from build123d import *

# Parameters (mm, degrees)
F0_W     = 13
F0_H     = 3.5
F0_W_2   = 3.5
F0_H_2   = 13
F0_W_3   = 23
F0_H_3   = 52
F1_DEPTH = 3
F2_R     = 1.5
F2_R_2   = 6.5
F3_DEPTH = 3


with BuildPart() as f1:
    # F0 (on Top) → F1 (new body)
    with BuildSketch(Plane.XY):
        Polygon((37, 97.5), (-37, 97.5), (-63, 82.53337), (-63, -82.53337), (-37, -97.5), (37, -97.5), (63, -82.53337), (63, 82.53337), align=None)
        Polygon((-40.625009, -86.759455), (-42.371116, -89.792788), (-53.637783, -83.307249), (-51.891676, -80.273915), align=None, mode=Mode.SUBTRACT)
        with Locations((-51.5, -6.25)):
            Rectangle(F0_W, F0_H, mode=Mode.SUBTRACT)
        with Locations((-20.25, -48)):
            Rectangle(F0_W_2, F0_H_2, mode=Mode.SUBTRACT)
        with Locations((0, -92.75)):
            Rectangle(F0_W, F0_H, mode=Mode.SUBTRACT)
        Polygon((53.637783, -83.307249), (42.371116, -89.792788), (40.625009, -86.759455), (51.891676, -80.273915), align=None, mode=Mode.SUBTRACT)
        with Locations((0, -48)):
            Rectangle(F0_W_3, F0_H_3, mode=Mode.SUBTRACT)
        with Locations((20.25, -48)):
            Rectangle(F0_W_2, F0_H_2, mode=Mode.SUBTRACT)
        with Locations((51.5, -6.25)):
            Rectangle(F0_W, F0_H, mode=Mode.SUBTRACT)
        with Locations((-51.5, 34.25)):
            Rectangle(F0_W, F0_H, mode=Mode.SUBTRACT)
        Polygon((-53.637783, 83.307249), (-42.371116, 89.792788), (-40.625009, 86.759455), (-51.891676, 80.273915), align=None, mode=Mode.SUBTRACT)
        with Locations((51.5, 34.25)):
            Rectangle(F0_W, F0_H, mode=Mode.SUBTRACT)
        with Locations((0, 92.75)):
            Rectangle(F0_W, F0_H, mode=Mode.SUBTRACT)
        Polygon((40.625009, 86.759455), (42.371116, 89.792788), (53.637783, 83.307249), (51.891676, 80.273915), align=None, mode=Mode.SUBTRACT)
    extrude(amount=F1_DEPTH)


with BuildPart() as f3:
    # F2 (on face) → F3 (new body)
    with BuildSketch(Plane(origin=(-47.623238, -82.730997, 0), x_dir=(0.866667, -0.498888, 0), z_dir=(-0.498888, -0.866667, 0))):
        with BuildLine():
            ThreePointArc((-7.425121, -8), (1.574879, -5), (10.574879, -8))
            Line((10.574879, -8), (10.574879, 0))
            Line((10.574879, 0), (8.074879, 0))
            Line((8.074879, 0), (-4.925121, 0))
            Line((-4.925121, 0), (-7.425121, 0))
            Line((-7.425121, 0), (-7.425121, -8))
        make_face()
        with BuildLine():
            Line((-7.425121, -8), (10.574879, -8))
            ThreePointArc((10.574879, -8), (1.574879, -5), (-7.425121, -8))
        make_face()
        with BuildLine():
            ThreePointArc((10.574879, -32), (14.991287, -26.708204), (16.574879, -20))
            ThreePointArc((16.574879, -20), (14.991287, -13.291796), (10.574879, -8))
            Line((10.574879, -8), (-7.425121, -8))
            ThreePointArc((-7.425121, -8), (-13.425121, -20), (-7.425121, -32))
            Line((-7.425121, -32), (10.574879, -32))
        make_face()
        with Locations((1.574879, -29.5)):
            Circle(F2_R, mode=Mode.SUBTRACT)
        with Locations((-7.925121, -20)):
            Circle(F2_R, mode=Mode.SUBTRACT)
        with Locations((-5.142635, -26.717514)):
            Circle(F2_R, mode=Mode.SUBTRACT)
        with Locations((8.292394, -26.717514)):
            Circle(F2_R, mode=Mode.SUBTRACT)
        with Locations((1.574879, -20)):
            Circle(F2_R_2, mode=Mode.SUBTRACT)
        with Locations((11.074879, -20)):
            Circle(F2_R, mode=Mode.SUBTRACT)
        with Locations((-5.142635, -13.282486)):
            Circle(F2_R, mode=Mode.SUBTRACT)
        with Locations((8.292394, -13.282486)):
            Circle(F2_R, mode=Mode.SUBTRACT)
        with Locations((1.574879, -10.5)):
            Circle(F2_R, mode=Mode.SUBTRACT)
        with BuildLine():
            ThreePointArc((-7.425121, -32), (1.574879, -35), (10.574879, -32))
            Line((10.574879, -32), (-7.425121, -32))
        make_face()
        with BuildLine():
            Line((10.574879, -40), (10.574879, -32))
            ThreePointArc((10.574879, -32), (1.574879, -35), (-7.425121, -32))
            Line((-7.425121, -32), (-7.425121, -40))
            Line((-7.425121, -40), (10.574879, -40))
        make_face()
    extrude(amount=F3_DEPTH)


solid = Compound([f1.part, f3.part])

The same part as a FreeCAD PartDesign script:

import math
import FreeCAD as App
import Part
import Sketcher

V = App.Vector
Q = App.Units.Quantity


def add_polygon(sketch, points):
    """Adds a closed chain of lines whose ends are joined by coincident constraints."""
    first, n = sketch.GeometryCount, len(points)
    for a, b in zip(points, points[1:] + points[:1]):
        sketch.addGeometry(Part.LineSegment(App.Vector(*a, 0), App.Vector(*b, 0)), False)
    for i in range(n):
        sketch.addConstraint(Sketcher.Constraint("Coincident", first + i, 2, first + (i + 1) % n, 1))

doc = App.newDocument("Part")
body = doc.addObject("PartDesign::Body", "Body")

# Sketch on XY plane
sketch1 = body.newObject("Sketcher::SketchObject", "Sketch")
sketch1.AttachmentSupport = (doc.getObject("XY_Plane"), [""])
sketch1.MapMode = "FlatFace"
add_polygon(sketch1, [(37, 97.5), (-37, 97.5), (-63, 82.5), (-63, -82.5), (-37, -97.5), (37, -97.5), (63, -82.5), (63, 82.5)])  # lines 0-7
add_polygon(sketch1, [(-51.9, -80.3), (-40.6, -86.8), (-42.4, -89.8), (-53.6, -83.3)])  # lines 8-11
add_polygon(sketch1, [(-18.5, -54.5), (-22, -54.5), (-22, -41.5), (-18.5, -41.5)])  # lines 12-15
add_polygon(sketch1, [(-45, -8), (-58, -8), (-58, -4.5), (-45, -4.5)])  # lines 16-19
add_polygon(sketch1, [(6.5, -94.5), (-6.5, -94.5), (-6.5, -91), (6.5, -91)])  # lines 20-23
add_polygon(sketch1, [(11.5, -74), (-11.5, -74), (-11.5, -22), (11.5, -22)])  # lines 24-27
add_polygon(sketch1, [(22, -54.5), (18.5, -54.5), (18.5, -41.5), (22, -41.5)])  # lines 28-31
add_polygon(sketch1, [(51.9, -80.3), (53.6, -83.3), (42.4, -89.8), (40.6, -86.8)])  # lines 32-35
add_polygon(sketch1, [(58, -8), (45, -8), (45, -4.5), (58, -4.5)])  # lines 36-39
add_polygon(sketch1, [(-45, 32.5), (-58, 32.5), (-58, 36), (-45, 36)])  # lines 40-43
add_polygon(sketch1, [(-51.9, 80.3), (-53.6, 83.3), (-42.4, 89.8), (-40.6, 86.8)])  # lines 44-47
add_polygon(sketch1, [(58, 32.5), (45, 32.5), (45, 36), (58, 36)])  # lines 48-51
add_polygon(sketch1, [(6.5, 91), (-6.5, 91), (-6.5, 94.5), (6.5, 94.5)])  # lines 52-55
add_polygon(sketch1, [(51.9, 80.3), (40.6, 86.8), (42.4, 89.8), (53.6, 83.3)])  # lines 56-59
sketch1.addConstraint(Sketcher.Constraint("Horizontal", 0))
sketch1.addConstraint(Sketcher.Constraint("Vertical", 2))
sketch1.addConstraint(Sketcher.Constraint("Horizontal", 4))
sketch1.addConstraint(Sketcher.Constraint("Vertical", 6))
sketch1.addConstraint(Sketcher.Constraint("Horizontal", 12))
sketch1.addConstraint(Sketcher.Constraint("Vertical", 13))
sketch1.addConstraint(Sketcher.Constraint("Horizontal", 14))
sketch1.addConstraint(Sketcher.Constraint("Vertical", 15))
sketch1.addConstraint(Sketcher.Constraint("Horizontal", 16))
sketch1.addConstraint(Sketcher.Constraint("Vertical", 17))
sketch1.addConstraint(Sketcher.Constraint("Horizontal", 18))
sketch1.addConstraint(Sketcher.Constraint("Vertical", 19))
sketch1.addConstraint(Sketcher.Constraint("Horizontal", 20))
sketch1.addConstraint(Sketcher.Constraint("Vertical", 21))
sketch1.addConstraint(Sketcher.Constraint("Horizontal", 22))
sketch1.addConstraint(Sketcher.Constraint("Vertical", 23))
sketch1.addConstraint(Sketcher.Constraint("Horizontal", 24))
sketch1.addConstraint(Sketcher.Constraint("Vertical", 25))
sketch1.addConstraint(Sketcher.Constraint("Horizontal", 26))
sketch1.addConstraint(Sketcher.Constraint("Vertical", 27))
sketch1.addConstraint(Sketcher.Constraint("Horizontal", 28))
sketch1.addConstraint(Sketcher.Constraint("Vertical", 29))
sketch1.addConstraint(Sketcher.Constraint("Horizontal", 30))
sketch1.addConstraint(Sketcher.Constraint("Vertical", 31))
sketch1.addConstraint(Sketcher.Constraint("Horizontal", 36))
sketch1.addConstraint(Sketcher.Constraint("Vertical", 37))
sketch1.addConstraint(Sketcher.Constraint("Horizontal", 38))
sketch1.addConstraint(Sketcher.Constraint("Vertical", 39))
sketch1.addConstraint(Sketcher.Constraint("Horizontal", 40))
sketch1.addConstraint(Sketcher.Constraint("Vertical", 41))
sketch1.addConstraint(Sketcher.Constraint("Horizontal", 42))
sketch1.addConstraint(Sketcher.Constraint("Vertical", 43))
sketch1.addConstraint(Sketcher.Constraint("Horizontal", 48))
sketch1.addConstraint(Sketcher.Constraint("Vertical", 49))
sketch1.addConstraint(Sketcher.Constraint("Horizontal", 50))
sketch1.addConstraint(Sketcher.Constraint("Vertical", 51))
sketch1.addConstraint(Sketcher.Constraint("Horizontal", 52))
sketch1.addConstraint(Sketcher.Constraint("Vertical", 53))
sketch1.addConstraint(Sketcher.Constraint("Horizontal", 54))
sketch1.addConstraint(Sketcher.Constraint("Vertical", 55))
sketch1.addConstraint(Sketcher.Constraint("Symmetric", 0, 2, 4, 2, -1, 1))
sketch1.addConstraint(Sketcher.Constraint("Symmetric", 1, 2, 5, 2, -1, 1))
sketch1.addConstraint(Sketcher.Constraint("Symmetric", 32, 2, 44, 2, -1, 1))
sketch1.addConstraint(Sketcher.Constraint("Symmetric", 33, 2, 45, 2, -1, 1))
sketch1.addConstraint(Sketcher.Constraint("Symmetric", 34, 2, 46, 2, -1, 1))
sketch1.addConstraint(Sketcher.Constraint("Symmetric", 35, 2, 47, 2, -1, 1))
sketch1.addConstraint(Sketcher.Constraint("Symmetric", 22, 2, 52, 2, -1, 1))
sketch1.addConstraint(Sketcher.Constraint("Symmetric", 20, 2, 54, 2, -1, 1))
sketch1.addConstraint(Sketcher.Constraint("Symmetric", 8, 2, 56, 2, -1, 1))
sketch1.addConstraint(Sketcher.Constraint("Symmetric", 9, 2, 57, 2, -1, 1))
sketch1.addConstraint(Sketcher.Constraint("Symmetric", 10, 2, 58, 2, -1, 1))
sketch1.addConstraint(Sketcher.Constraint("Symmetric", 11, 2, 59, 2, -1, 1))
sketch1.addConstraint(Sketcher.Constraint("Symmetric", 15, 2, 28, 2, -2))
sketch1.addConstraint(Sketcher.Constraint("Symmetric", 13, 2, 30, 2, -2))
sketch1.addConstraint(Sketcher.Constraint("Symmetric", 10, 2, 32, 2, -2))
sketch1.addConstraint(Sketcher.Constraint("Symmetric", 9, 2, 33, 2, -2))
sketch1.addConstraint(Sketcher.Constraint("Symmetric", 8, 2, 34, 2, -2))
sketch1.addConstraint(Sketcher.Constraint("Symmetric", 11, 2, 35, 2, -2))
sketch1.addConstraint(Sketcher.Constraint("Symmetric", 19, 2, 36, 2, -2))
sketch1.addConstraint(Sketcher.Constraint("Symmetric", 17, 2, 38, 2, -2))
sketch1.addConstraint(Sketcher.Constraint("Symmetric", 43, 2, 48, 2, -2))
sketch1.addConstraint(Sketcher.Constraint("Symmetric", 41, 2, 50, 2, -2))
sketch1.addConstraint(Sketcher.Constraint("Parallel", 3, 7))
sketch1.addConstraint(Sketcher.Constraint("Parallel", 7, 8))
sketch1.addConstraint(Sketcher.Constraint("Perpendicular", 8, 9))
sketch1.addConstraint(Sketcher.Constraint("Perpendicular", 9, 10))
sketch1.addConstraint(Sketcher.Constraint("Perpendicular", 10, 11))
sketch1.addConstraint(Sketcher.Constraint("Perpendicular", 5, 32))
sketch1.addConstraint(Sketcher.Constraint("Horizontal", 2, 2, 5, 2))
sketch1.addConstraint(Sketcher.Constraint("Horizontal", 1, 2, 6, 2))
sketch1.addConstraint(Sketcher.Constraint("Vertical", 17, 2, 40, 2))
sketch1.addConstraint(Sketcher.Constraint("Vertical", 19, 2, 42, 2))
sketch1.addConstraint(Sketcher.Constraint("Vertical", 21, 2, 52, 2))
sketch1.addConstraint(Sketcher.Constraint("Equal", 18, 20))
sketch1.addConstraint(Sketcher.Constraint("Equal", 54, 13))
sketch1.addConstraint(Sketcher.Constraint("Equal", 30, 17))
sketch1.addConstraint(Sketcher.Constraint("Equal", 19, 21))
sketch1.addConstraint(Sketcher.Constraint("Equal", 39, 41))
sketch1.addConstraint(Sketcher.Constraint("DistanceX", 0, 2, 0, 1, Q("74 mm")))
sketch1.addConstraint(Sketcher.Constraint("DistanceX", 16, 2, 16, 1, Q("13 mm")))
sketch1.addConstraint(Sketcher.Constraint("DistanceX", 24, 2, 24, 1, Q("23 mm")))
sketch1.addConstraint(Sketcher.Constraint("DistanceY", 25, 1, 25, 2, Q("52 mm")))
sketch1.addConstraint(Sketcher.Constraint("Distance", 1, Q("30 mm")))
sketch1.addConstraint(Sketcher.Constraint("Distance", 8, Q("13.000001 mm")))
sketch1.addConstraint(Sketcher.Constraint("DistanceX", 12, 2, 12, 1, Q("3.5 mm")))
sketch1.addConstraint(Sketcher.Constraint("DistanceX", 1, 2, -1, 1, Q("63 mm")))
sketch1.addConstraint(Sketcher.Constraint("DistanceX", 12, 2, -1, 1, Q("22 mm")))
sketch1.addConstraint(Sketcher.Constraint("DistanceX", 16, 2, -1, 1, Q("58 mm")))
sketch1.addConstraint(Sketcher.Constraint("DistanceY", 16, 2, -1, 1, Q("8 mm")))
sketch1.addConstraint(Sketcher.Constraint("DistanceY", 21, 2, -1, 1, Q("91 mm")))
sketch1.addConstraint(Sketcher.Constraint("DistanceY", 24, 2, -1, 1, Q("74 mm")))
sketch1.addConstraint(Sketcher.Constraint("DistanceY", -1, 1, 41, 2, Q("36 mm")))
sketch1.addConstraint(Sketcher.Constraint("DistanceY", 3, 2, 0, 2, Q("195 mm")))
sketch1.addConstraint(Sketcher.Constraint("DistanceY", 3, 2, 12, 2, Q("43 mm")))
sketch1.addConstraint(Sketcher.Constraint("DistanceX", 24, 2, 21, 2, Q("5 mm")))
sketch1.addConstraint(Sketcher.Constraint("Distance", 9, Q("3.5 mm")))
sketch1.addConstraint(Sketcher.Constraint("DistanceX", 8, 2, -1, 1, Q("40.625009 mm")))
sketch1.addConstraint(Sketcher.Constraint("DistanceY", 9, 2, -1, 1, Q("89.792788 mm")))
pad1 = body.newObject("PartDesign::Pad", "Pad")
pad1.Profile = sketch1
pad1.Length = 3
body2 = doc.addObject("PartDesign::Body", "Body001")

# Sketch on an angled plane
sketch2 = body2.newObject("Sketcher::SketchObject", "Sketch001")
sketch2.Placement = App.Placement(V(-47.623238, -82.730997, 0), App.Rotation(V(0.866666599, -0.498887769, 0), V(0, 0, 1), V(-0.498887769, -0.866666599, 0), "ZXY"))
sketch2.addGeometry(Part.LineSegment(V(10.6, -8, 0), V(10.6, 0, 0)), False)
sketch2.addGeometry(Part.LineSegment(V(10.6, 0, 0), V(-7.4, 0, 0)), False)
sketch2.addGeometry(Part.LineSegment(V(-7.4, 0, 0), V(-7.4, -8, 0)), False)
sketch2.addGeometry(Part.ArcOfCircle(Part.Circle(V(1.6, -20, 0), V(0, 0, 1), 15), math.radians(127), math.radians(233)), False)
sketch2.addGeometry(Part.LineSegment(V(-7.4, -32, 0), V(-7.4, -40, 0)), False)
sketch2.addGeometry(Part.LineSegment(V(-7.4, -40, 0), V(10.6, -40, 0)), False)
sketch2.addGeometry(Part.LineSegment(V(10.6, -40, 0), V(10.6, -32, 0)), False)
sketch2.addGeometry(Part.ArcOfCircle(Part.Circle(V(1.6, -20, 0), V(0, 0, 1), 15), math.radians(-53), math.radians(0)), False)
sketch2.addGeometry(Part.ArcOfCircle(Part.Circle(V(1.6, -20, 0), V(0, 0, 1), 15), math.radians(0), math.radians(53)), False)
sketch2.addGeometry(Part.Circle(V(-5.1, -26.7, 0), V(0, 0, 1), 1.5), False)
sketch2.addGeometry(Part.Circle(V(1.6, -29.5, 0), V(0, 0, 1), 1.5), False)
sketch2.addGeometry(Part.Circle(V(8.3, -26.7, 0), V(0, 0, 1), 1.5), False)
sketch2.addGeometry(Part.Circle(V(-7.9, -20, 0), V(0, 0, 1), 1.5), False)
sketch2.addGeometry(Part.Circle(V(-5.1, -13.3, 0), V(0, 0, 1), 1.5), False)
sketch2.addGeometry(Part.Circle(V(1.6, -20, 0), V(0, 0, 1), 6.5), False)
sketch2.addGeometry(Part.Circle(V(11.1, -20, 0), V(0, 0, 1), 1.5), False)
sketch2.addGeometry(Part.Circle(V(1.6, -10.5, 0), V(0, 0, 1), 1.5), False)
sketch2.addGeometry(Part.Circle(V(8.3, -13.3, 0), V(0, 0, 1), 1.5), False)
sketch2.addConstraint(Sketcher.Constraint("Coincident", 0, 2, 1, 1))
sketch2.addConstraint(Sketcher.Constraint("Coincident", 1, 2, 2, 1))
sketch2.addConstraint(Sketcher.Constraint("Coincident", 2, 2, 3, 1))
sketch2.addConstraint(Sketcher.Constraint("Coincident", 3, 2, 4, 1))
sketch2.addConstraint(Sketcher.Constraint("Coincident", 4, 2, 5, 1))
sketch2.addConstraint(Sketcher.Constraint("Coincident", 5, 2, 6, 1))
sketch2.addConstraint(Sketcher.Constraint("Coincident", 6, 2, 7, 1))
sketch2.addConstraint(Sketcher.Constraint("Tangent", 7, 2, 8, 1))
sketch2.addConstraint(Sketcher.Constraint("Coincident", 8, 2, 0, 1))
sketch2.addConstraint(Sketcher.Constraint("Vertical", 0))
sketch2.addConstraint(Sketcher.Constraint("Horizontal", 1))
sketch2.addConstraint(Sketcher.Constraint("Vertical", 2))
sketch2.addConstraint(Sketcher.Constraint("Vertical", 4))
sketch2.addConstraint(Sketcher.Constraint("Horizontal", 5))
sketch2.addConstraint(Sketcher.Constraint("Vertical", 6))
sketch2.addConstraint(Sketcher.Constraint("Coincident", 7, 3, 3, 3))
sketch2.addConstraint(Sketcher.Constraint("Coincident", 14, 3, 3, 3))
sketch2.addConstraint(Sketcher.Constraint("Equal", 3, 7))
sketch2.addConstraint(Sketcher.Constraint("Equal", 7, 8))
sketch2.addConstraint(Sketcher.Constraint("Equal", 9, 10))
sketch2.addConstraint(Sketcher.Constraint("Equal", 10, 11))
sketch2.addConstraint(Sketcher.Constraint("Equal", 11, 12))
sketch2.addConstraint(Sketcher.Constraint("Equal", 12, 13))
sketch2.addConstraint(Sketcher.Constraint("Equal", 13, 15))
sketch2.addConstraint(Sketcher.Constraint("Equal", 15, 16))
sketch2.addConstraint(Sketcher.Constraint("Equal", 16, 17))
sketch2.addConstraint(Sketcher.Constraint("PointOnObject", 0, 2, -1))
sketch2.addConstraint(Sketcher.Constraint("Horizontal", 9, 3, 11, 3))
sketch2.addConstraint(Sketcher.Constraint("Horizontal", 8, 3, 12, 3))
sketch2.addConstraint(Sketcher.Constraint("Horizontal", 14, 3, 15, 3))
sketch2.addConstraint(Sketcher.Constraint("Horizontal", 13, 3, 17, 3))
sketch2.addConstraint(Sketcher.Constraint("Horizontal", 3, 2, 6, 2))
sketch2.addConstraint(Sketcher.Constraint("Horizontal", 15, 3, 7, 2))
sketch2.addConstraint(Sketcher.Constraint("Horizontal", 2, 2, 8, 2))
sketch2.addConstraint(Sketcher.Constraint("Vertical", 8, 3, 10, 3))
sketch2.addConstraint(Sketcher.Constraint("Vertical", 9, 3, 13, 3))
sketch2.addConstraint(Sketcher.Constraint("Vertical", 14, 3, 16, 3))
sketch2.addConstraint(Sketcher.Constraint("Vertical", 11, 3, 17, 3))
sketch2.addConstraint(Sketcher.Constraint("Vertical", 2, 2, 3, 2))
sketch2.addConstraint(Sketcher.Constraint("Equal", 2, 4))
sketch2.addConstraint(Sketcher.Constraint("Diameter", 9, Q("3 mm")))
sketch2.addConstraint(Sketcher.Constraint("Diameter", 14, Q("13 mm")))
sketch2.addConstraint(Sketcher.Constraint("Radius", 3, Q("15 mm")))
sketch2.addConstraint(Sketcher.Constraint("DistanceX", 1, 2, 1, 1, Q("18 mm")))
sketch2.addConstraint(Sketcher.Constraint("DistanceY", 0, 1, 0, 2, Q("8 mm")))
sketch2.addConstraint(Sketcher.Constraint("DistanceY", 10, 3, -1, 1, Q("29.5 mm")))
sketch2.addConstraint(Sketcher.Constraint("DistanceY", 16, 3, -1, 1, Q("10.5 mm")))
sketch2.addConstraint(Sketcher.Constraint("DistanceX", 12, 3, 3, 3, Q("9.5 mm")))
sketch2.addConstraint(Sketcher.Constraint("DistanceX", 7, 3, 15, 3, Q("9.499999 mm")))
sketch2.addConstraint(Sketcher.Constraint("DistanceX", -1, 1, 3, 3, Q("1.574879 mm")))
sketch2.addConstraint(Sketcher.Constraint("DistanceX", 9, 3, 11, 3, Q("13.435029 mm")))
sketch2.addConstraint(Sketcher.Constraint("DistanceX", 9, 3, -1, 1, Q("5.142635 mm")))
sketch2.addConstraint(Sketcher.Constraint("DistanceY", 9, 3, -1, 1, Q("26.717514 mm")))
sketch2.addConstraint(Sketcher.Constraint("DistanceY", 13, 3, -1, 1, Q("13.282486 mm")))
pad2 = body2.newObject("PartDesign::Pad", "Pad001")
pad2.Profile = sketch2
pad2.Length = 3

doc.recompute()
